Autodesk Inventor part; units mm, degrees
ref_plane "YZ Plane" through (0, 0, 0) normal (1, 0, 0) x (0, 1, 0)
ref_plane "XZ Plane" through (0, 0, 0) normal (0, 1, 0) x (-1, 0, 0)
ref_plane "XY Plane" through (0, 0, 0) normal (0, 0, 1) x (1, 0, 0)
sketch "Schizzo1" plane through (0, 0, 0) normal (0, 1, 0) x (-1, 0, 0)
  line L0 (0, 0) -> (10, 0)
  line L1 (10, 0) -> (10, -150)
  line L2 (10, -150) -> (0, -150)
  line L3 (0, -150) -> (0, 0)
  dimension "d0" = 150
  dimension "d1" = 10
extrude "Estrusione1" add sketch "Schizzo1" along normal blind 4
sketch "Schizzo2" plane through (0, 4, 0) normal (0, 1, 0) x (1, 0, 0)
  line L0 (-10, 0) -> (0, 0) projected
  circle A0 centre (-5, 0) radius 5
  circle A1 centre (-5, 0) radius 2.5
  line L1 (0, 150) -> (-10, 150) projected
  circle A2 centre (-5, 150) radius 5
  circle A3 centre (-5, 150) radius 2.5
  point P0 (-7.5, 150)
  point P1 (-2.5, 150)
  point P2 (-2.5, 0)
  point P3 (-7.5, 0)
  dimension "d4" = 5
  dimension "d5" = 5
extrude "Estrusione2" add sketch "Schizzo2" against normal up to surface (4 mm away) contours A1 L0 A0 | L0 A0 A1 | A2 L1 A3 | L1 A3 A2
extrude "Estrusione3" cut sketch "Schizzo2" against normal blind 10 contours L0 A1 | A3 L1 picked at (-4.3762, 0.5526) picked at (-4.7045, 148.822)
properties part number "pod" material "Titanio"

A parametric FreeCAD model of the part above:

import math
import FreeCAD as App
import Part
import Sketcher
from FreeCAD import Vector
Q = App.Units.Quantity

doc = App.newDocument("Part")
body = doc.addObject("PartDesign::Body", "Body")

# Sketch on XZ plane
sketch1 = doc.addObject("Sketcher::SketchObject", "Sketch")
body.addObject(sketch1)
sketch1.AttachmentSupport = (doc.XZ_Plane, [""])
sketch1.MapMode = "FlatFace"
sketch1.addGeometry([
    Part.LineSegment(Vector(-10, 0, 0), Vector(0, 0, 0)),
    Part.LineSegment(Vector(0, 0, 0), Vector(0, -150, 0)),
    Part.LineSegment(Vector(0, -150, 0), Vector(-10, -150, 0)),
    Part.LineSegment(Vector(-10, -150, 0), Vector(-10, 0, 0)),
], False)
sketch1.addConstraint([
    Sketcher.Constraint("Coincident", 0, 2, 1, 1),
    Sketcher.Constraint("Coincident", 1, 2, 2, 1),
    Sketcher.Constraint("Coincident", 2, 2, 3, 1),
    Sketcher.Constraint("Coincident", 3, 2, 0, 1),
    Sketcher.Constraint("Horizontal", 0),
    Sketcher.Constraint("Vertical", 1),
    Sketcher.Constraint("Horizontal", 2),
    Sketcher.Constraint("Vertical", 3),
    Sketcher.Constraint("Coincident", 0, 2, -1, 1),
    Sketcher.Constraint("DistanceX", 0, 1, 0, 2, Q("10 mm")),
    Sketcher.Constraint("DistanceY", 1, 2, 1, 1, Q("150 mm")),
])
pad1 = doc.addObject("PartDesign::Pad", "Pad")
body.addObject(pad1)
pad1.Profile = sketch1
pad1.Length = 4
pad1.Reversed = True

# Sketch on XZ plane
sketch2 = doc.addObject("Sketcher::SketchObject", "Sketch001")
body.addObject(sketch2)
sketch2.AttachmentSupport = (doc.XZ_Plane, [""])
sketch2.MapMode = "FlatFace"
sketch2.AttachmentOffset = App.Placement(Vector(0, 0, -4), App.Rotation())
sketch2.addGeometry([
    Part.Circle(Vector(-5, 0, 0), Vector(0, 0, 1), 5),
    Part.Circle(Vector(-5, 0, 0), Vector(0, 0, 1), 2.5),
    Part.Circle(Vector(-5, -150, 0), Vector(0, 0, 1), 5),
    Part.Circle(Vector(-5, -150, 0), Vector(0, 0, 1), 2.5),
], False)
sketch2.addConstraint([
    Sketcher.Constraint("Coincident", 1, 3, 0, 3),
    Sketcher.Constraint("Coincident", 3, 3, 2, 3),
    Sketcher.Constraint("Equal", 0, 2),
    Sketcher.Constraint("Equal", 1, 3),
    Sketcher.Constraint("PointOnObject", 0, 3, -1),
    Sketcher.Constraint("Vertical", 1, 3, 2, 3),
    Sketcher.Constraint("Diameter", 0, Q("10 mm")),
    Sketcher.Constraint("Diameter", 1, Q("5 mm")),
    Sketcher.Constraint("DistanceX", 0, 3, -1, 1, Q("5 mm")),
    Sketcher.Constraint("DistanceY", 2, 3, -1, 1, Q("150 mm")),
])
pad2 = doc.addObject("PartDesign::Pad", "Pad001")
body.addObject(pad2)
pad2.Profile = sketch2
pad2.Length = 4

# Sketch on XZ plane
sketch3 = doc.addObject("Sketcher::SketchObject", "Sketch002")
body.addObject(sketch3)
sketch3.AttachmentSupport = (doc.XZ_Plane, [""])
sketch3.MapMode = "FlatFace"
sketch3.AttachmentOffset = App.Placement(Vector(0, 0, -4), App.Rotation())
sketch3.addGeometry([
    Part.LineSegment(Vector(-7.5, 0, 0), Vector(-2.5, 0, 0)),
    Part.ArcOfCircle(Part.Circle(Vector(-5, 0, 0), Vector(0, 0, 1), 2.5), math.radians(180), math.radians(360)),
    Part.ArcOfCircle(Part.Circle(Vector(-5, -150, 0), Vector(0, 0, 1), 2.5), math.radians(0), math.radians(180)),
    Part.LineSegment(Vector(-2.5, -150, 0), Vector(-7.5, -150, 0)),
], False)
sketch3.addConstraint([
    Sketcher.Constraint("Coincident", 0, 1, 1, 1),
    Sketcher.Constraint("Coincident", 1, 2, 0, 2),
    Sketcher.Constraint("Coincident", 2, 1, 3, 1),
    Sketcher.Constraint("Coincident", 3, 2, 2, 2),
    Sketcher.Constraint("Horizontal", 0),
    Sketcher.Constraint("Horizontal", 3),
    Sketcher.Constraint("Equal", 1, 2),
    Sketcher.Constraint("PointOnObject", 1, 3, -1),
    Sketcher.Constraint("PointOnObject", 0, 1, -1),
    Sketcher.Constraint("Vertical", 1, 3, 2, 3),
    Sketcher.Constraint("Radius", 1, Q("2.5 mm")),
    Sketcher.Constraint("DistanceX", 1, 3, -1, 1, Q("5 mm")),
    Sketcher.Constraint("DistanceY", 2, 3, -1, 1, Q("150 mm")),
    Sketcher.Constraint("DistanceY", 2, 1, -1, 1, Q("150 mm")),
])
pocket1 = doc.addObject("PartDesign::Pocket", "Pocket")
body.addObject(pocket1)
pocket1.Profile = sketch3
pocket1.Length = 10
pocket1.Reversed = True

doc.recompute()
